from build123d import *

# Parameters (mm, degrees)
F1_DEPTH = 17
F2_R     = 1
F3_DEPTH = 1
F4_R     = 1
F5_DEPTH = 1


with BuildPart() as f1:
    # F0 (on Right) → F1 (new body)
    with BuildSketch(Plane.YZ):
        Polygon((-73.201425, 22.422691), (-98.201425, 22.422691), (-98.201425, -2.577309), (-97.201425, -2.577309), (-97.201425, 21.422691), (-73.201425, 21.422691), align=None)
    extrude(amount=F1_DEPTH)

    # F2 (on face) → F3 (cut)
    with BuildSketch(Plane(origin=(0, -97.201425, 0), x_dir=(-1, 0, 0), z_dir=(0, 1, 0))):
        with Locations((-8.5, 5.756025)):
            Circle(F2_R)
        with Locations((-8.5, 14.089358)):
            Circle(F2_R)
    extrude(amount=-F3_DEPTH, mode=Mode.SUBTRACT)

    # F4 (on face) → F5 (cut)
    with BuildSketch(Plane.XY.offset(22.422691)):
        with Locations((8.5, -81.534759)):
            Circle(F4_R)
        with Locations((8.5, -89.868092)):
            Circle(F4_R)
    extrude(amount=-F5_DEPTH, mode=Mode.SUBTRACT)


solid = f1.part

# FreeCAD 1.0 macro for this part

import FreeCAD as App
import Part
import Sketcher
Q = App.Units.Quantity


def add_polygon(sketch, points):
    """Adds a closed chain of lines whose ends are joined by coincident constraints."""
    first, n = sketch.GeometryCount, len(points)
    for a, b in zip(points, points[1:] + points[:1]):
        sketch.addGeometry(Part.LineSegment(App.Vector(*a, 0), App.Vector(*b, 0)), False)
    for i in range(n):
        sketch.addConstraint(Sketcher.Constraint("Coincident", first + i, 2, first + (i + 1) % n, 1))

doc = App.newDocument("Part")
params = doc.addObject("Spreadsheet::Sheet", "Params")
for row, (alias, value) in enumerate([
    ("sketch1_width", "25 mm"),
    ("sketch1_width2", "1 mm"),
    ("pad1_length", "17 mm"),
    ("sketch2_diameter", "2 mm"),
    ("pocket1_length", "1 mm"),
    ("sketch3_diameter", "2 mm"),
    ("pocket2_length", "1 mm"),
], start=1):
    params.set(f"A{row}", alias)
    params.set(f"B{row}", "=" + value)
    params.setAlias(f"B{row}", alias)

body = doc.addObject("PartDesign::Body", "Body")

# Sketch on YZ plane
sketch1 = doc.addObject("Sketcher::SketchObject", "Sketch")
body.addObject(sketch1)
sketch1.AttachmentSupport = (doc.YZ_Plane, [""])
sketch1.MapMode = "FlatFace"
add_polygon(sketch1, [(-73.2, 22.4), (-98.2, 22.4), (-98.2, -2.6), (-97.2, -2.6), (-97.2, 21.4), (-73.2, 21.4)])  # lines 0-5
sketch1.addConstraint([
    Sketcher.Constraint("Horizontal", 0),
    Sketcher.Constraint("Vertical", 1),
    Sketcher.Constraint("Horizontal", 2),
    Sketcher.Constraint("Vertical", 3),
    Sketcher.Constraint("Horizontal", 4),
    Sketcher.Constraint("Vertical", 5),
    Sketcher.Constraint("Equal", 0, 1),
    Sketcher.Constraint("Equal", 4, 3),
    Sketcher.Constraint("DistanceX", 0, 2, 0, 1, Q("25 mm")),
    Sketcher.Constraint("DistanceX", 2, 1, 2, 2, Q("1 mm")),
    Sketcher.Constraint("DistanceY", -1, 1, 0, 2, Q("22.422691 mm")),
    Sketcher.Constraint("DistanceX", 0, 2, -1, 1, Q("98.201425 mm")),
])
sketch1.setExpression("Constraints[14]", "Params.sketch1_width")
sketch1.setExpression("Constraints[15]", "Params.sketch1_width2")
pad1 = doc.addObject("PartDesign::Pad", "Pad")
body.addObject(pad1)
pad1.Profile = sketch1
pad1.setExpression("Length", "Params.pad1_length")

# Sketch on XZ plane
sketch2 = doc.addObject("Sketcher::SketchObject", "Sketch001")
body.addObject(sketch2)
sketch2.AttachmentSupport = (doc.XZ_Plane, [""])
sketch2.MapMode = "FlatFace"
sketch2.AttachmentOffset = App.Placement(App.Vector(0, 0, 97.201425), App.Rotation())
sketch2.addGeometry([
    Part.Circle(App.Vector(8.5, 5.8, 0), App.Vector(0, 0, 1), 1),
    Part.Circle(App.Vector(8.5, 14.1, 0), App.Vector(0, 0, 1), 1),
], False)
sketch2.addConstraint([
    Sketcher.Constraint("Equal", 0, 1),
    Sketcher.Constraint("Vertical", 0, 3, 1, 3),
    Sketcher.Constraint("Diameter", 0, Q("2 mm")),
    Sketcher.Constraint("DistanceX", -1, 1, 0, 3, Q("8.5 mm")),
    Sketcher.Constraint("DistanceY", -1, 1, 1, 3, Q("14.089358 mm")),
    Sketcher.Constraint("DistanceY", -1, 1, 0, 3, Q("5.756025 mm")),
])
sketch2.setExpression("Constraints[2]", "Params.sketch2_diameter")
pocket1 = doc.addObject("PartDesign::Pocket", "Pocket")
body.addObject(pocket1)
pocket1.Profile = sketch2
pocket1.setExpression("Length", "Params.pocket1_length")
pocket1.Reversed = True

# Sketch on XY plane
sketch3 = doc.addObject("Sketcher::SketchObject", "Sketch002")
body.addObject(sketch3)
sketch3.AttachmentSupport = (doc.XY_Plane, [""])
sketch3.MapMode = "FlatFace"
sketch3.AttachmentOffset = App.Placement(App.Vector(0, 0, 22.422691), App.Rotation())
sketch3.addGeometry([
    Part.Circle(App.Vector(8.5, -81.5, 0), App.Vector(0, 0, 1), 1),
    Part.Circle(App.Vector(8.5, -89.9, 0), App.Vector(0, 0, 1), 1),
], False)
sketch3.addConstraint([
    Sketcher.Constraint("Equal", 0, 1),
    Sketcher.Constraint("Vertical", 0, 3, 1, 3),
    Sketcher.Constraint("Diameter", 0, Q("2 mm")),
    Sketcher.Constraint("DistanceX", -1, 1, 0, 3, Q("8.5 mm")),
    Sketcher.Constraint("DistanceY", 0, 3, -1, 1, Q("81.534759 mm")),
    Sketcher.Constraint("DistanceY", 1, 3, -1, 1, Q("89.868092 mm")),
])
sketch3.setExpression("Constraints[2]", "Params.sketch3_diameter")
pocket2 = doc.addObject("PartDesign::Pocket", "Pocket001")
body.addObject(pocket2)
pocket2.Profile = sketch3
pocket2.setExpression("Length", "Params.pocket2_length")

doc.recompute()
